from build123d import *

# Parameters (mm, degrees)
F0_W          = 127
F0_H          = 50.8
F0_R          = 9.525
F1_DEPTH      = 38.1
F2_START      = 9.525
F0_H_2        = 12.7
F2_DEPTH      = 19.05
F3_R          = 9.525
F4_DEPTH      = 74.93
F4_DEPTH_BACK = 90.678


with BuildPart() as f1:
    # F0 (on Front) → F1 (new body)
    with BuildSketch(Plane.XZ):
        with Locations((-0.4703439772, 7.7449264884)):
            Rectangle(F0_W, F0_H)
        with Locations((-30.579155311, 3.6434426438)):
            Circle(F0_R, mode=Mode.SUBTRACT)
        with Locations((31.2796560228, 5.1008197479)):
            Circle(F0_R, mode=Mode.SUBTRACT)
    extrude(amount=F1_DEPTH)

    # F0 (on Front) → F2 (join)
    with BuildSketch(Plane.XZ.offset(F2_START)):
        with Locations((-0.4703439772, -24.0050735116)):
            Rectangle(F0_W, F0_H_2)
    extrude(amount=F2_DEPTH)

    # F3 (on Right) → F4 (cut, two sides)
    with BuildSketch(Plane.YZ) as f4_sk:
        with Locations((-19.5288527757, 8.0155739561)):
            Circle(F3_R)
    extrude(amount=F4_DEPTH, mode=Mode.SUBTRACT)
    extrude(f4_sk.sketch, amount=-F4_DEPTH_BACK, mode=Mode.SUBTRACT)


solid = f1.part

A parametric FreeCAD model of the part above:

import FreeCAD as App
import Part
import Sketcher

V = App.Vector
Q = App.Units.Quantity

doc = App.newDocument("Part")
body = doc.addObject("PartDesign::Body", "Body")

# Sketch on XZ plane
sketch1 = body.newObject("Sketcher::SketchObject", "Sketch")
sketch1.AttachmentSupport = (doc.getObject("XZ_Plane"), [""])
sketch1.MapMode = "FlatFace"
sketch1.addGeometry([
    Part.LineSegment(V(-63.970344, 33.144926, 0), V(-63.970344, -17.655074, 0)),  # 0
    Part.LineSegment(V(-63.970344, -17.655074, 0), V(63.029656, -17.655074, 0)),  # 1
    Part.LineSegment(V(63.029656, -17.655074, 0), V(63.029656, 33.144926, 0)),  # 2
    Part.LineSegment(V(63.029656, 33.144926, 0), V(-63.970344, 33.144926, 0)),  # 3
    Part.Circle(V(-30.579155, 3.643443, 0), V(0, 0, 1), 9.525),  # 4
    Part.Circle(V(31.279656, 5.10082, 0), V(0, 0, 1), 9.525),  # 5
], False)
sketch1.addConstraint([
    Sketcher.Constraint("Coincident", 0, 2, 1, 1),
    Sketcher.Constraint("Coincident", 1, 2, 2, 1),
    Sketcher.Constraint("Coincident", 2, 2, 3, 1),
    Sketcher.Constraint("Coincident", 3, 2, 0, 1),
    Sketcher.Constraint("Vertical", 0),
    Sketcher.Constraint("Horizontal", 1),
    Sketcher.Constraint("Vertical", 2),
    Sketcher.Constraint("Horizontal", 3),
    Sketcher.Constraint("Equal", 4, 5),
    Sketcher.Constraint("Diameter", 4, Q("0.75 in")),
    Sketcher.Constraint("DistanceX", 1, 1, 1, 2, Q("5 in")),
    Sketcher.Constraint("DistanceY", 0, 2, 0, 1, Q("2 in")),
    Sketcher.Constraint("DistanceX", 0, 2, 5, 3, Q("3.75 in")),
    Sketcher.Constraint("DistanceY", -1, 1, 5, 3, Q("5.10082 mm")),
    Sketcher.Constraint("DistanceX", 4, 3, 5, 3, Q("61.858811 mm")),
    Sketcher.Constraint("DistanceX", 4, 3, -1, 1, Q("30.579155 mm")),
    Sketcher.Constraint("DistanceY", -1, 1, 4, 3, Q("3.643443 mm")),
    Sketcher.Constraint("DistanceY", 0, 2, -1, 1, Q("17.655074 mm")),
])
pad1 = body.newObject("PartDesign::Pad", "Pad")
pad1.Profile = sketch1
pad1.Length = Q("1.5 in")

# Sketch on XZ plane
sketch2 = body.newObject("Sketcher::SketchObject", "Sketch001")
sketch2.AttachmentSupport = (doc.getObject("XZ_Plane"), [""])
sketch2.MapMode = "FlatFace"
sketch2.AttachmentOffset = App.Placement(V(0, 0, 0.375 * 25.4), App.Rotation())
sketch2.addGeometry([
    Part.LineSegment(V(-63.970344, -17.655074, 0), V(-63.970344, -30.355074, 0)),
    Part.LineSegment(V(-63.970344, -30.355074, 0), V(63.029656, -30.355074, 0)),
    Part.LineSegment(V(63.029656, -30.355074, 0), V(63.029656, -17.655074, 0)),
    Part.LineSegment(V(63.029656, -17.655074, 0), V(-63.970344, -17.655074, 0)),
], False)
sketch2.addConstraint([
    Sketcher.Constraint("Coincident", 0, 2, 1, 1),
    Sketcher.Constraint("Coincident", 1, 2, 2, 1),
    Sketcher.Constraint("Coincident", 2, 2, 3, 1),
    Sketcher.Constraint("Coincident", 3, 2, 0, 1),
    Sketcher.Constraint("Vertical", 0),
    Sketcher.Constraint("Horizontal", 1),
    Sketcher.Constraint("Vertical", 2),
    Sketcher.Constraint("Horizontal", 3),
    Sketcher.Constraint("DistanceX", 1, 1, 1, 2, Q("5 in")),
    Sketcher.Constraint("DistanceY", 0, 2, 0, 1, Q("0.5 in")),
    Sketcher.Constraint("DistanceX", 0, 2, -1, 1, Q("63.970344 mm")),
    Sketcher.Constraint("DistanceY", 0, 2, -1, 1, Q("30.355074 mm")),
])
pad2 = body.newObject("PartDesign::Pad", "Pad001")
pad2.Profile = sketch2
pad2.Length = Q("0.75 in")

# Sketch on YZ plane
sketch3 = body.newObject("Sketcher::SketchObject", "Sketch002")
sketch3.AttachmentSupport = (doc.getObject("YZ_Plane"), [""])
sketch3.MapMode = "FlatFace"
sketch3.addGeometry(Part.Circle(V(-19.528853, 8.015574, 0), V(0, 0, 1), 9.525), False)
sketch3.addConstraint([
    Sketcher.Constraint("Diameter", 0, Q("0.75 in")),
    Sketcher.Constraint("DistanceX", 0, 3, -1, 1, Q("19.528853 mm")),
    Sketcher.Constraint("DistanceY", -1, 1, 0, 3, Q("8.015574 mm")),
])
pocket1 = body.newObject("PartDesign::Pocket", "Pocket")
pocket1.Profile = sketch3
pocket1.Type = "ThroughAll"
pocket1.Midplane = True

doc.recompute()
